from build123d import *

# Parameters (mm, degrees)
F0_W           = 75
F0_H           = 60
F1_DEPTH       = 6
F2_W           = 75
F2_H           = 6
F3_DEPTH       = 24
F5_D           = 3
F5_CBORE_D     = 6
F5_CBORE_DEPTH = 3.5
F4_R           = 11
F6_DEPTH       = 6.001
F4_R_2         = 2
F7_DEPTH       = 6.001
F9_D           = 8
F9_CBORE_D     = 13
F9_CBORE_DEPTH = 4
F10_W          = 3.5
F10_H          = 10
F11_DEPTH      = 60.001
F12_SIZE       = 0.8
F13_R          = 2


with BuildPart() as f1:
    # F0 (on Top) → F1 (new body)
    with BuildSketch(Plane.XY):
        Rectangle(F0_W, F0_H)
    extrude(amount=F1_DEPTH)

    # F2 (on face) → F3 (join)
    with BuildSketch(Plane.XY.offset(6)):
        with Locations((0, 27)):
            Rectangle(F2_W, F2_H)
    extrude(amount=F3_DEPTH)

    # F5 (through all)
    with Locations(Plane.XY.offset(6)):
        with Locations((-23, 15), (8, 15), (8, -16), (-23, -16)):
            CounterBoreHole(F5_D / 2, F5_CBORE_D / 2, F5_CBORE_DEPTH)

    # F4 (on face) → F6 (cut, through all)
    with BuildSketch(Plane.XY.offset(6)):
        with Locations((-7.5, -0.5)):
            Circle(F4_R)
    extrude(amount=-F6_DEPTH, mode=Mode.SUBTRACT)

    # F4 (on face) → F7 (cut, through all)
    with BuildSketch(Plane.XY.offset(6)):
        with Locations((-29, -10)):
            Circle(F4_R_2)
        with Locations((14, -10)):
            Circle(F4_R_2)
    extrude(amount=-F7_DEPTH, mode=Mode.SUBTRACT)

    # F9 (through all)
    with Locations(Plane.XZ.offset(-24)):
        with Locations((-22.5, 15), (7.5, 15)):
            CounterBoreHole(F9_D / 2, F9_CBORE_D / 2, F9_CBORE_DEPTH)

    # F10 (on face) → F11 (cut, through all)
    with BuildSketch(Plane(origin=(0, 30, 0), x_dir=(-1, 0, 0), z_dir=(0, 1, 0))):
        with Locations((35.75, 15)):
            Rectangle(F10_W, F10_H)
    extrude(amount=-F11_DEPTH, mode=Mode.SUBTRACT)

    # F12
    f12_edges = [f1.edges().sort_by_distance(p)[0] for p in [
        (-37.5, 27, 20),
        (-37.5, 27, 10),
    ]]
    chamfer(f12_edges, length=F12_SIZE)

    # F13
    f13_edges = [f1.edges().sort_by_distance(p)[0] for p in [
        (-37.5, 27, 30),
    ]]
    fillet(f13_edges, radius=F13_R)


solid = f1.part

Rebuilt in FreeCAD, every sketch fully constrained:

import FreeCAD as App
import Part
import Sketcher

V = App.Vector


def edges_at(feature, points):
    """Names of the edges that pass closest to the given points."""
    edges = feature.Shape.Edges
    near = lambda p: min(range(len(edges)), key=lambda i: edges[i].distToShape(Part.Vertex(*p))[0])
    return sorted({f"Edge{near(p) + 1}" for p in points})


def add_polygon(sketch, points):
    """Adds a closed chain of lines whose ends are joined by coincident constraints."""
    first, n = sketch.GeometryCount, len(points)
    for a, b in zip(points, points[1:] + points[:1]):
        sketch.addGeometry(Part.LineSegment(App.Vector(*a, 0), App.Vector(*b, 0)), False)
    for i in range(n):
        sketch.addConstraint(Sketcher.Constraint("Coincident", first + i, 2, first + (i + 1) % n, 1))

doc = App.newDocument("Part")
body = doc.addObject("PartDesign::Body", "Body")

sketch1 = body.newObject("Sketcher::SketchObject", "Sketch")
sketch1.AttachmentSupport = (doc.getObject("XY_Plane"), [""])
sketch1.MapMode = "FlatFace"
add_polygon(sketch1, [(-38, 30), (-38, -30), (38, -30), (38, 30)])
sketch1.addConstraint([
    Sketcher.Constraint("Vertical", 0),
    Sketcher.Constraint("Horizontal", 1),
    Sketcher.Constraint("Vertical", 2),
    Sketcher.Constraint("Horizontal", 3),
    Sketcher.Constraint("Symmetric", 0, 2, 2, 2, -1, 1),
    Sketcher.Constraint("DistanceX", 1, 1, 1, 2, 75.0),
    Sketcher.Constraint("DistanceY", 0, 2, 0, 1, 60.0),
])
pad1 = body.newObject("PartDesign::Pad", "Pad")
pad1.Profile = sketch1
pad1.Length = 6

sketch2 = body.newObject("Sketcher::SketchObject", "Sketch001")
sketch2.AttachmentSupport = (doc.getObject("XY_Plane"), [""])
sketch2.MapMode = "FlatFace"
sketch2.AttachmentOffset = App.Placement(V(0, 0, 6), App.Rotation())
add_polygon(sketch2, [(-38, 30), (-38, 24), (38, 24), (38, 30)])
sketch2.addConstraint([
    Sketcher.Constraint("Vertical", 0),
    Sketcher.Constraint("Horizontal", 1),
    Sketcher.Constraint("Vertical", 2),
    Sketcher.Constraint("Horizontal", 3),
    Sketcher.Constraint("DistanceX", 1, 1, 1, 2, 75.0),
    Sketcher.Constraint("DistanceY", 0, 2, 0, 1, 6.0),
    Sketcher.Constraint("DistanceY", -1, 1, 0, 2, 24.0),
    Sketcher.Constraint("DistanceX", 0, 2, -1, 1, 37.5),
])
pad2 = body.newObject("PartDesign::Pad", "Pad001")
pad2.Profile = sketch2
pad2.Length = 24

sketch3 = body.newObject("Sketcher::SketchObject", "Sketch002")
sketch3.AttachmentSupport = (doc.getObject("XY_Plane"), [""])
sketch3.MapMode = "FlatFace"
sketch3.AttachmentOffset = App.Placement(V(0, 0, 6), App.Rotation())
sketch3.addGeometry([
    Part.Circle(V(-23, 15, 0), V(0, 0, 1), 1.5),
    Part.Circle(V(8, 15, 0), V(0, 0, 1), 1.5),
    Part.Circle(V(8, -16, 0), V(0, 0, 1), 1.5),
    Part.Circle(V(-23, -16, 0), V(0, 0, 1), 1.5),
], False)
sketch3.addConstraint([
    Sketcher.Constraint("Equal", 0, 1),
    Sketcher.Constraint("Equal", 1, 2),
    Sketcher.Constraint("Equal", 2, 3),
    Sketcher.Constraint("Horizontal", 0, 3, 1, 3),
    Sketcher.Constraint("Horizontal", 2, 3, 3, 3),
    Sketcher.Constraint("Vertical", 1, 3, 2, 3),
    Sketcher.Constraint("Vertical", 0, 3, 3, 3),
    Sketcher.Constraint("Diameter", 0, 3.0),
    Sketcher.Constraint("DistanceX", 0, 3, -1, 1, 23.0),
    Sketcher.Constraint("DistanceY", -1, 1, 0, 3, 15.0),
    Sketcher.Constraint("DistanceX", -1, 1, 1, 3, 8.0),
    Sketcher.Constraint("DistanceY", 2, 3, -1, 1, 16.0),
])
doc.recompute()
hole = body.newObject("PartDesign::Hole", "Hole")
hole.Profile = sketch3
hole.ThreadType = "None"
hole.Diameter = 3
hole.DepthType = "ThroughAll"
hole.HoleCutType = "Counterbore"
hole.HoleCutDiameter = 6
hole.HoleCutDepth = 3.5

sketch4 = body.newObject("Sketcher::SketchObject", "Sketch003")
sketch4.AttachmentSupport = (doc.getObject("XY_Plane"), [""])
sketch4.MapMode = "FlatFace"
sketch4.AttachmentOffset = App.Placement(V(0, 0, 6), App.Rotation())
sketch4.addGeometry(Part.Circle(V(-8, 0, 0), V(0, 0, 1), 11), False)
sketch4.addConstraint([
    Sketcher.Constraint("Diameter", 0, 22.0),
    Sketcher.Constraint("DistanceX", 0, 3, -1, 1, 7.5),
    Sketcher.Constraint("DistanceY", 0, 3, -1, 1, 0.5),
])
pocket1 = body.newObject("PartDesign::Pocket", "Pocket")
pocket1.Profile = sketch4
pocket1.Type = "ThroughAll"

sketch5 = body.newObject("Sketcher::SketchObject", "Sketch004")
sketch5.AttachmentSupport = (doc.getObject("XY_Plane"), [""])
sketch5.MapMode = "FlatFace"
sketch5.AttachmentOffset = App.Placement(V(0, 0, 6), App.Rotation())
sketch5.addGeometry([
    Part.Circle(V(-29, -10, 0), V(0, 0, 1), 2),
    Part.Circle(V(14, -10, 0), V(0, 0, 1), 2),
], False)
sketch5.addConstraint([
    Sketcher.Constraint("Equal", 0, 1),
    Sketcher.Constraint("Horizontal", 0, 3, 1, 3),
    Sketcher.Constraint("Diameter", 0, 4.0),
    Sketcher.Constraint("DistanceX", 0, 3, -1, 1, 29.0),
    Sketcher.Constraint("DistanceY", 0, 3, -1, 1, 10.0),
    Sketcher.Constraint("DistanceX", -1, 1, 1, 3, 14.0),
])
pocket2 = body.newObject("PartDesign::Pocket", "Pocket001")
pocket2.Profile = sketch5
pocket2.Type = "ThroughAll"

sketch6 = body.newObject("Sketcher::SketchObject", "Sketch005")
sketch6.AttachmentSupport = (doc.getObject("XZ_Plane"), [""])
sketch6.MapMode = "FlatFace"
sketch6.AttachmentOffset = App.Placement(V(0, 0, -24), App.Rotation())
sketch6.addGeometry([
    Part.Circle(V(-22.5, 15, 0), V(0, 0, 1), 4),
    Part.Circle(V(7.5, 15, 0), V(0, 0, 1), 4),
], False)
sketch6.addConstraint([
    Sketcher.Constraint("Equal", 0, 1),
    Sketcher.Constraint("Horizontal", 0, 3, 1, 3),
    Sketcher.Constraint("Diameter", 0, 8.0),
    Sketcher.Constraint("DistanceY", -1, 1, 0, 3, 15.0),
    Sketcher.Constraint("DistanceX", 0, 3, 1, 3, 30.0),
    Sketcher.Constraint("DistanceX", 0, 3, -1, 1, 22.5),
])
doc.recompute()
hole2 = body.newObject("PartDesign::Hole", "Hole001")
hole2.Profile = sketch6
hole2.ThreadType = "None"
hole2.Diameter = 8
hole2.DepthType = "ThroughAll"
hole2.HoleCutType = "Counterbore"
hole2.HoleCutDiameter = 13
hole2.HoleCutDepth = 4

sketch7 = body.newObject("Sketcher::SketchObject", "Sketch006")
sketch7.AttachmentSupport = (doc.getObject("XZ_Plane"), [""])
sketch7.MapMode = "FlatFace"
sketch7.AttachmentOffset = App.Placement(V(0, 0, -30), App.Rotation())
add_polygon(sketch7, [(-34, 20), (-34, 10), (-37.5, 10), (-37.5, 20)])
sketch7.addConstraint([
    Sketcher.Constraint("Vertical", 0),
    Sketcher.Constraint("Horizontal", 1),
    Sketcher.Constraint("Vertical", 2),
    Sketcher.Constraint("Horizontal", 3),
    Sketcher.Constraint("DistanceY", 0, 2, 0, 1, 10.0),
    Sketcher.Constraint("DistanceX", 1, 2, 1, 1, 3.5),
    Sketcher.Constraint("DistanceX", 0, 2, -1, 1, 34.0),
    Sketcher.Constraint("DistanceY", -1, 1, 0, 2, 10.0),
])
pocket3 = body.newObject("PartDesign::Pocket", "Pocket002")
pocket3.Profile = sketch7
pocket3.Type = "ThroughAll"
pocket3.Reversed = True
doc.recompute()

chamfer = body.newObject("PartDesign::Chamfer", "Chamfer")
chamfer.Base = (pocket3, edges_at(pocket3, [(-37.5, 27, 20), (-37.5, 27, 10)]))
chamfer.Size = 0.8
doc.recompute()

fillet = body.newObject("PartDesign::Fillet", "Fillet")
fillet.Base = (chamfer, edges_at(chamfer, [(-37.5, 27, 30)]))
fillet.Radius = 2

doc.recompute()
